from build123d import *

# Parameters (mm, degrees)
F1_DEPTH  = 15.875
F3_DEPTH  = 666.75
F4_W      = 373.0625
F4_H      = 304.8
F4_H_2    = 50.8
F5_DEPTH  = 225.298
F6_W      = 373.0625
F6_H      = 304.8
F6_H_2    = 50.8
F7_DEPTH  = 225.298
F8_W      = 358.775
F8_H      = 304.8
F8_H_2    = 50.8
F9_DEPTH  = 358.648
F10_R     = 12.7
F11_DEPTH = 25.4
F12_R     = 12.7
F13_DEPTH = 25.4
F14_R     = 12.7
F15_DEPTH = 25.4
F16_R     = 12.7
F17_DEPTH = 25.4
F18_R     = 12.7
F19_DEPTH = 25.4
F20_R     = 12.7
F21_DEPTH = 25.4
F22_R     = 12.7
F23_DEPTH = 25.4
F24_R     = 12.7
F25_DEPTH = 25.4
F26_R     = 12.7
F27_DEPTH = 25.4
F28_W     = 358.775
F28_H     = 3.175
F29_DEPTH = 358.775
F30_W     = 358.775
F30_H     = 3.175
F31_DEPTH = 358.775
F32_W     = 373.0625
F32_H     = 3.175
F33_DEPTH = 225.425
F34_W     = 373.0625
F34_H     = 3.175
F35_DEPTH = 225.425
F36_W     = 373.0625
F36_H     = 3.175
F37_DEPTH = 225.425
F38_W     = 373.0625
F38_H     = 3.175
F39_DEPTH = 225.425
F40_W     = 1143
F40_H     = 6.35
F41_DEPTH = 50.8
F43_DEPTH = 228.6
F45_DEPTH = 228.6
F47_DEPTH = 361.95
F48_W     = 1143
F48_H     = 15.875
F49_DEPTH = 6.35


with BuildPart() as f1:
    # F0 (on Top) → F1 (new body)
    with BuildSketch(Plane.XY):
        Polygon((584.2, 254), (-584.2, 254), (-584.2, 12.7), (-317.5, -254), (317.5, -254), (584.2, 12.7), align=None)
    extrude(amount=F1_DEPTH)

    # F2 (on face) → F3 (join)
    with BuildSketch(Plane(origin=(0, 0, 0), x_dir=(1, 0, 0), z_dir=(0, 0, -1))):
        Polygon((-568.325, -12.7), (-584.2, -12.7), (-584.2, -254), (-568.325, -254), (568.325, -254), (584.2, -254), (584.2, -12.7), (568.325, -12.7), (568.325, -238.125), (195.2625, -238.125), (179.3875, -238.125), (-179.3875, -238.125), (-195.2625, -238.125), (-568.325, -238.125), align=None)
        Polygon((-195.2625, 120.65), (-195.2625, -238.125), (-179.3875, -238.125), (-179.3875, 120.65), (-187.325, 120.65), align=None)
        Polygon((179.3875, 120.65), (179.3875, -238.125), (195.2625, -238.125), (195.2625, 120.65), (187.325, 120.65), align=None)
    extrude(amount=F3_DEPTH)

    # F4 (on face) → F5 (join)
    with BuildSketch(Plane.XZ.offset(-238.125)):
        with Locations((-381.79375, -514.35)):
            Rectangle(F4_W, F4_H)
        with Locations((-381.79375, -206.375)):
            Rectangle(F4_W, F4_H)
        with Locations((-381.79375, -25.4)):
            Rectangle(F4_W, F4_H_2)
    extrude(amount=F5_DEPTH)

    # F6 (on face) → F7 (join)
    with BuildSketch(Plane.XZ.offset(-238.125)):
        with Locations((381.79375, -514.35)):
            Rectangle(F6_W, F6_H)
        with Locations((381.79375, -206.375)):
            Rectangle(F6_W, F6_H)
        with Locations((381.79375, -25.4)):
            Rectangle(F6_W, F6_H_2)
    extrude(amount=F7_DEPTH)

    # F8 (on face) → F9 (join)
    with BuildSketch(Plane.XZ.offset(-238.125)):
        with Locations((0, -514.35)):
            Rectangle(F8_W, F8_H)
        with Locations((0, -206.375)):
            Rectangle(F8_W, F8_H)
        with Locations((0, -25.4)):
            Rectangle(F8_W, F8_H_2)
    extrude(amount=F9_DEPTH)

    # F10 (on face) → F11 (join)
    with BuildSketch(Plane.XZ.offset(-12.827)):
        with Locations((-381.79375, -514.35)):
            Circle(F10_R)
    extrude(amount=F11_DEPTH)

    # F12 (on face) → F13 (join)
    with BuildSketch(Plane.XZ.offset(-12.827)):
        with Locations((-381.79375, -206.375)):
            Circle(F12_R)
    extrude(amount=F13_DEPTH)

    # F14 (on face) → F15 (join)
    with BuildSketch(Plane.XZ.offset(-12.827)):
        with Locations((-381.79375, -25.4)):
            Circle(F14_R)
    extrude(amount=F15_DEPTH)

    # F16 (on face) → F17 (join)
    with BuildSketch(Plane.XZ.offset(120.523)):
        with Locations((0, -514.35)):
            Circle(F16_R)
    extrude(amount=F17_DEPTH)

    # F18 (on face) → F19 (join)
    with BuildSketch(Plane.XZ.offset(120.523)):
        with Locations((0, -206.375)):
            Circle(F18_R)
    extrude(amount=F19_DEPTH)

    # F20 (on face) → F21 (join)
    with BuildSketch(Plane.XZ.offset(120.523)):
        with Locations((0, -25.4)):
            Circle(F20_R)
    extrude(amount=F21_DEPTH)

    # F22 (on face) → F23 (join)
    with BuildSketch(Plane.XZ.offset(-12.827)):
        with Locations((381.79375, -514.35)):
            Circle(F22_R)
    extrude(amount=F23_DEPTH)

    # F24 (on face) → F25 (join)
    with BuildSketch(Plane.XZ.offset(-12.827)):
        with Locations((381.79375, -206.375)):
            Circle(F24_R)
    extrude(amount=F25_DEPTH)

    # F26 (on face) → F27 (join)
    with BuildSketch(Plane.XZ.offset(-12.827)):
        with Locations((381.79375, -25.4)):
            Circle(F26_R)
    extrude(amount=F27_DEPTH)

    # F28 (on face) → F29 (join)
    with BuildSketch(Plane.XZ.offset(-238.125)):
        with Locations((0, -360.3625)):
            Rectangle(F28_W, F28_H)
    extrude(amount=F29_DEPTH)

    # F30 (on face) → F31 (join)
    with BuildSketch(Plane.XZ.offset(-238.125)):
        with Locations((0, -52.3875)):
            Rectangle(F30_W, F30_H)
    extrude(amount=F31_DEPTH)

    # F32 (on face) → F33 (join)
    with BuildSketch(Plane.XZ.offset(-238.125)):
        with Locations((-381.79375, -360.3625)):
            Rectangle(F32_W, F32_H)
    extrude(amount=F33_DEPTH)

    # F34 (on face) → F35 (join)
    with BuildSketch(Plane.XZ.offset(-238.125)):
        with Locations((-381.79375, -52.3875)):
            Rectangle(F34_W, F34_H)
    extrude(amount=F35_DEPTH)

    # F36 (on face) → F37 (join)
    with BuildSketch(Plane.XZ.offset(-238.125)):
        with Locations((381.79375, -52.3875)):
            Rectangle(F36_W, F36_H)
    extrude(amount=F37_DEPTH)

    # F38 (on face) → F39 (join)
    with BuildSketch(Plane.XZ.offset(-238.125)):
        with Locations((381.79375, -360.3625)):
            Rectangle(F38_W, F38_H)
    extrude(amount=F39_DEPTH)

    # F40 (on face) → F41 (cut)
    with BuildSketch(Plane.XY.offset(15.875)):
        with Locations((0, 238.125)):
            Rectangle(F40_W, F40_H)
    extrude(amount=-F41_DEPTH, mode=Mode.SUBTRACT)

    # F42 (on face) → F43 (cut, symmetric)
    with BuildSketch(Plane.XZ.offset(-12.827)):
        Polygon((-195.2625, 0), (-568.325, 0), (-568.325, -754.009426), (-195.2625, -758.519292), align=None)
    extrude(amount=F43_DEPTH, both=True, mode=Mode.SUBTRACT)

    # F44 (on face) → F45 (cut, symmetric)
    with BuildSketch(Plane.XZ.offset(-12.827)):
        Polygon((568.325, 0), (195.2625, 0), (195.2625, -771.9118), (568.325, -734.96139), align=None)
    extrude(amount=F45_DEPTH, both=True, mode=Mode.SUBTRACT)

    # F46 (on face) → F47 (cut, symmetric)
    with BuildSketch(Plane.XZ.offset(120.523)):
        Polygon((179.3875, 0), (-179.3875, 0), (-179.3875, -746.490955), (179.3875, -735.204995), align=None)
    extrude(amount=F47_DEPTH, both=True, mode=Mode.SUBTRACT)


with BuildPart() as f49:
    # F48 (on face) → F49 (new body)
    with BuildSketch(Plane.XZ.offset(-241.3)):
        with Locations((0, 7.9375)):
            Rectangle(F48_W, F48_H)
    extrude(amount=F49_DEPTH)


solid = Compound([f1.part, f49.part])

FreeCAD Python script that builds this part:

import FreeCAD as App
import Part
import Sketcher
Q = App.Units.Quantity


def add_polygon(sketch, points):
    """Adds a closed chain of lines whose ends are joined by coincident constraints."""
    first, n = sketch.GeometryCount, len(points)
    for a, b in zip(points, points[1:] + points[:1]):
        sketch.addGeometry(Part.LineSegment(App.Vector(*a, 0), App.Vector(*b, 0)), False)
    for i in range(n):
        sketch.addConstraint(Sketcher.Constraint("Coincident", first + i, 2, first + (i + 1) % n, 1))

doc = App.newDocument("Part")
body = doc.addObject("PartDesign::Body", "Body")

# Sketch on XY plane
sketch1 = body.newObject("Sketcher::SketchObject", "Sketch")
sketch1.AttachmentSupport = (doc.getObject("XY_Plane"), [""])
sketch1.MapMode = "FlatFace"
add_polygon(sketch1, [(584, 254), (-584, 254), (-584, 13), (-318, -254), (318, -254), (584, 13)])  # lines 0-5
sketch1.addConstraint([
    Sketcher.Constraint("Horizontal", 0),
    Sketcher.Constraint("Vertical", 1),
    Sketcher.Constraint("Horizontal", 3),
    Sketcher.Constraint("Vertical", 5),
    Sketcher.Constraint("Symmetric", 1, 2, 4, 2, -2),
    Sketcher.Constraint("Perpendicular", 2, 4),
    Sketcher.Constraint("Equal", 2, 4),
    Sketcher.Constraint("DistanceX", 0, 2, 0, 1, Q("46 in")),
    Sketcher.Constraint("DistanceX", 3, 1, 3, 2, Q("25 in")),
    Sketcher.Constraint("DistanceY", 1, 2, 1, 1, Q("9.5 in")),
    Sketcher.Constraint("DistanceY", -1, 1, 0, 2, Q("10 in")),
])
pad1 = body.newObject("PartDesign::Pad", "Pad")
pad1.Profile = sketch1
pad1.Length = Q("0.625 in")

# Sketch on XY plane
sketch2 = body.newObject("Sketcher::SketchObject", "Sketch001")
sketch2.AttachmentSupport = (doc.getObject("XY_Plane"), [""])
sketch2.MapMode = "FlatFace"
add_polygon(sketch2, [(-568, 13), (-584, 13), (-584, 254), (584, 254), (584, 13), (568, 13), (568, 238), (195, 238), (195, -121), (179, -121), (179, 238), (-179, 238), (-179, -121), (-195, -121), (-195, 238), (-568, 238)])  # lines 0-15
sketch2.addConstraint([
    Sketcher.Constraint("Horizontal", 0),
    Sketcher.Constraint("Vertical", 1),
    Sketcher.Constraint("Horizontal", 2),
    Sketcher.Constraint("Vertical", 3),
    Sketcher.Constraint("Horizontal", 4),
    Sketcher.Constraint("Vertical", 5),
    Sketcher.Constraint("Horizontal", 6),
    Sketcher.Constraint("Vertical", 7),
    Sketcher.Constraint("Horizontal", 8),
    Sketcher.Constraint("Vertical", 9),
    Sketcher.Constraint("Horizontal", 10),
    Sketcher.Constraint("Vertical", 11),
    Sketcher.Constraint("Horizontal", 12),
    Sketcher.Constraint("Vertical", 13),
    Sketcher.Constraint("Horizontal", 14),
    Sketcher.Constraint("Vertical", 15),
    Sketcher.Constraint("Symmetric", 0, 2, 3, 2, -2),
    Sketcher.Constraint("Symmetric", 8, 2, 11, 2, -2),
    Sketcher.Constraint("Symmetric", 6, 2, 13, 2, -2),
    Sketcher.Constraint("Horizontal", 6, 2, 9, 2),
    Sketcher.Constraint("Equal", 0, 4),
    Sketcher.Constraint("Equal", 4, 8),
    Sketcher.Constraint("Equal", 10, 7),
    Sketcher.Constraint("DistanceX", 2, 1, 2, 2, Q("46 in")),
    Sketcher.Constraint("DistanceY", 1, 1, 1, 2, Q("9.5 in")),
    Sketcher.Constraint("DistanceY", -1, 1, 1, 2, Q("10 in")),
    Sketcher.Constraint("DistanceX", 0, 2, 0, 1, Q("0.625 in")),
    Sketcher.Constraint("DistanceX", 6, 2, 6, 1, Q("14.6875 in")),
    Sketcher.Constraint("DistanceY", 5, 1, 5, 2, Q("8.875 in")),
])
pad2 = body.newObject("PartDesign::Pad", "Pad001")
pad2.Profile = sketch2
pad2.Length = Q("26.25 in")
pad2.Reversed = True

# Sketch on XZ plane
sketch3 = body.newObject("Sketcher::SketchObject", "Sketch002")
sketch3.AttachmentSupport = (doc.getObject("XZ_Plane"), [""])
sketch3.MapMode = "FlatFace"
sketch3.AttachmentOffset = App.Placement(App.Vector(0, 0, -9.375 * 25.4), App.Rotation())
add_polygon(sketch3, [(-568, -362), (-568, -667), (-195, -667), (-195, -362)])  # lines 0-3
add_polygon(sketch3, [(-568, -54), (-568, -359), (-195, -359), (-195, -54)])  # lines 4-7
add_polygon(sketch3, [(-568, 0), (-568, -51), (-195, -51), (-195, 0)])  # lines 8-11
sketch3.addConstraint([
    Sketcher.Constraint("Vertical", 0),
    Sketcher.Constraint("Horizontal", 1),
    Sketcher.Constraint("Vertical", 2),
    Sketcher.Constraint("Horizontal", 3),
    Sketcher.Constraint("Vertical", 4),
    Sketcher.Constraint("Horizontal", 5),
    Sketcher.Constraint("Vertical", 6),
    Sketcher.Constraint("Horizontal", 7),
    Sketcher.Constraint("Vertical", 8),
    Sketcher.Constraint("Horizontal", 9),
    Sketcher.Constraint("Vertical", 10),
    Sketcher.Constraint("Horizontal", 11),
    Sketcher.Constraint("PointOnObject", 10, 2, -1),
    Sketcher.Constraint("Vertical", 3, 2, 4, 2),
    Sketcher.Constraint("Vertical", 2, 2, 5, 2),
    Sketcher.Constraint("Vertical", 7, 2, 8, 2),
    Sketcher.Constraint("Vertical", 6, 2, 9, 2),
    Sketcher.Constraint("Equal", 2, 4),
    Sketcher.Constraint("DistanceY", 0, 2, 0, 1, Q("12 in")),
    Sketcher.Constraint("DistanceY", 8, 2, 8, 1, Q("2 in")),
    Sketcher.Constraint("DistanceX", 1, 1, 1, 2, Q("14.6875 in")),
    Sketcher.Constraint("DistanceY", 0, 2, -1, 1, Q("26.25 in")),
    Sketcher.Constraint("DistanceX", 0, 2, -1, 1, Q("22.375 in")),
    Sketcher.Constraint("DistanceY", 4, 2, -1, 1, Q("14.125 in")),
])
pad3 = body.newObject("PartDesign::Pad", "Pad002")
pad3.Profile = sketch3
pad3.Length = Q("8.87 in")

# Sketch on XZ plane
sketch4 = body.newObject("Sketcher::SketchObject", "Sketch003")
sketch4.AttachmentSupport = (doc.getObject("XZ_Plane"), [""])
sketch4.MapMode = "FlatFace"
sketch4.AttachmentOffset = App.Placement(App.Vector(0, 0, -9.375 * 25.4), App.Rotation())
add_polygon(sketch4, [(195, -362), (195, -667), (568, -667), (568, -362)])  # lines 0-3
add_polygon(sketch4, [(195, -54), (195, -359), (568, -359), (568, -54)])  # lines 4-7
add_polygon(sketch4, [(195, 0), (195, -51), (568, -51), (568, 0)])  # lines 8-11
sketch4.addConstraint([
    Sketcher.Constraint("Vertical", 0),
    Sketcher.Constraint("Horizontal", 1),
    Sketcher.Constraint("Vertical", 2),
    Sketcher.Constraint("Horizontal", 3),
    Sketcher.Constraint("Vertical", 4),
    Sketcher.Constraint("Horizontal", 5),
    Sketcher.Constraint("Vertical", 6),
    Sketcher.Constraint("Horizontal", 7),
    Sketcher.Constraint("Vertical", 8),
    Sketcher.Constraint("Horizontal", 9),
    Sketcher.Constraint("Vertical", 10),
    Sketcher.Constraint("Horizontal", 11),
    Sketcher.Constraint("PointOnObject", 10, 2, -1),
    Sketcher.Constraint("Vertical", 3, 2, 4, 2),
    Sketcher.Constraint("Vertical", 2, 2, 5, 2),
    Sketcher.Constraint("Vertical", 7, 2, 8, 2),
    Sketcher.Constraint("Vertical", 6, 2, 9, 2),
    Sketcher.Constraint("Equal", 2, 4),
    Sketcher.Constraint("DistanceY", 0, 2, 0, 1, Q("12 in")),
    Sketcher.Constraint("DistanceY", 8, 2, 8, 1, Q("2 in")),
    Sketcher.Constraint("DistanceX", 1, 1, 1, 2, Q("14.6875 in")),
    Sketcher.Constraint("DistanceY", 0, 2, -1, 1, Q("26.25 in")),
    Sketcher.Constraint("DistanceX", -1, 1, 0, 2, Q("7.6875 in")),
    Sketcher.Constraint("DistanceY", 4, 2, -1, 1, Q("14.125 in")),
])
pad4 = body.newObject("PartDesign::Pad", "Pad003")
pad4.Profile = sketch4
pad4.Length = Q("8.87 in")

# Sketch on XZ plane
sketch5 = body.newObject("Sketcher::SketchObject", "Sketch004")
sketch5.AttachmentSupport = (doc.getObject("XZ_Plane"), [""])
sketch5.MapMode = "FlatFace"
sketch5.AttachmentOffset = App.Placement(App.Vector(0, 0, -9.375 * 25.4), App.Rotation())
add_polygon(sketch5, [(-179, -362), (-179, -667), (179, -667), (179, -362)])  # lines 0-3
add_polygon(sketch5, [(-179, -54), (-179, -359), (179, -359), (179, -54)])  # lines 4-7
add_polygon(sketch5, [(-179, 0), (-179, -51), (179, -51), (179, 0)])  # lines 8-11
sketch5.addConstraint([
    Sketcher.Constraint("Vertical", 0),
    Sketcher.Constraint("Horizontal", 1),
    Sketcher.Constraint("Vertical", 2),
    Sketcher.Constraint("Horizontal", 3),
    Sketcher.Constraint("Vertical", 4),
    Sketcher.Constraint("Horizontal", 5),
    Sketcher.Constraint("Vertical", 6),
    Sketcher.Constraint("Horizontal", 7),
    Sketcher.Constraint("Vertical", 8),
    Sketcher.Constraint("Horizontal", 9),
    Sketcher.Constraint("Vertical", 10),
    Sketcher.Constraint("Horizontal", 11),
    Sketcher.Constraint("Symmetric", 10, 2, 11, 2, -1, 1),
    Sketcher.Constraint("Vertical", 3, 2, 4, 2),
    Sketcher.Constraint("Vertical", 2, 2, 5, 2),
    Sketcher.Constraint("Vertical", 7, 2, 8, 2),
    Sketcher.Constraint("Vertical", 6, 2, 9, 2),
    Sketcher.Constraint("Equal", 2, 4),
    Sketcher.Constraint("DistanceY", 0, 2, 0, 1, Q("12 in")),
    Sketcher.Constraint("DistanceY", 8, 2, 8, 1, Q("2 in")),
    Sketcher.Constraint("DistanceX", 1, 1, 1, 2, Q("14.125 in")),
    Sketcher.Constraint("DistanceY", 0, 2, -1, 1, Q("26.25 in")),
    Sketcher.Constraint("DistanceY", 4, 2, -1, 1, Q("14.125 in")),
])
pad5 = body.newObject("PartDesign::Pad", "Pad004")
pad5.Profile = sketch5
pad5.Length = Q("14.12 in")

# Sketch on XZ plane
sketch6 = body.newObject("Sketcher::SketchObject", "Sketch005")
sketch6.AttachmentSupport = (doc.getObject("XZ_Plane"), [""])
sketch6.MapMode = "FlatFace"
sketch6.AttachmentOffset = App.Placement(App.Vector(0, 0, -0.505 * 25.4), App.Rotation())
sketch6.addGeometry(Part.Circle(App.Vector(-382, -514, 0), App.Vector(0, 0, 1), 13), False)
sketch6.addConstraint([
    Sketcher.Constraint("Diameter", 0, Q("1 in")),
    Sketcher.Constraint("DistanceY", 0, 3, -1, 1, Q("20.25 in")),
    Sketcher.Constraint("DistanceX", 0, 3, -1, 1, Q("15.03125 in")),
])
pad6 = body.newObject("PartDesign::Pad", "Pad005")
pad6.Profile = sketch6
pad6.Length = Q("1 in")

# Sketch on XZ plane
sketch7 = body.newObject("Sketcher::SketchObject", "Sketch006")
sketch7.AttachmentSupport = (doc.getObject("XZ_Plane"), [""])
sketch7.MapMode = "FlatFace"
sketch7.AttachmentOffset = App.Placement(App.Vector(0, 0, -0.505 * 25.4), App.Rotation())
sketch7.addGeometry(Part.Circle(App.Vector(-382, -206, 0), App.Vector(0, 0, 1), 13), False)
sketch7.addConstraint([
    Sketcher.Constraint("Diameter", 0, Q("1 in")),
    Sketcher.Constraint("DistanceX", 0, 3, -1, 1, Q("15.03125 in")),
    Sketcher.Constraint("DistanceY", 0, 3, -1, 1, Q("8.125 in")),
])
pad7 = body.newObject("PartDesign::Pad", "Pad006")
pad7.Profile = sketch7
pad7.Length = Q("1 in")

# Sketch on XZ plane
sketch8 = body.newObject("Sketcher::SketchObject", "Sketch007")
sketch8.AttachmentSupport = (doc.getObject("XZ_Plane"), [""])
sketch8.MapMode = "FlatFace"
sketch8.AttachmentOffset = App.Placement(App.Vector(0, 0, -0.505 * 25.4), App.Rotation())
sketch8.addGeometry(Part.Circle(App.Vector(-382, -25, 0), App.Vector(0, 0, 1), 13), False)
sketch8.addConstraint([
    Sketcher.Constraint("Diameter", 0, Q("1 in")),
    Sketcher.Constraint("DistanceY", 0, 3, -1, 1, Q("1 in")),
    Sketcher.Constraint("DistanceX", 0, 3, -1, 1, Q("15.03125 in")),
])
pad8 = body.newObject("PartDesign::Pad", "Pad007")
pad8.Profile = sketch8
pad8.Length = Q("1 in")

# Sketch on XZ plane
sketch9 = body.newObject("Sketcher::SketchObject", "Sketch008")
sketch9.AttachmentSupport = (doc.getObject("XZ_Plane"), [""])
sketch9.MapMode = "FlatFace"
sketch9.AttachmentOffset = App.Placement(App.Vector(0, 0, 4.745 * 25.4), App.Rotation())
sketch9.addGeometry(Part.Circle(App.Vector(0, -514, 0), App.Vector(0, 0, 1), 13), False)
sketch9.addConstraint([
    Sketcher.Constraint("PointOnObject", 0, 3, -2),
    Sketcher.Constraint("Diameter", 0, Q("1 in")),
    Sketcher.Constraint("DistanceY", 0, 3, -1, 1, Q("20.25 in")),
])
pad9 = body.newObject("PartDesign::Pad", "Pad008")
pad9.Profile = sketch9
pad9.Length = Q("1 in")

# Sketch on XZ plane
sketch10 = body.newObject("Sketcher::SketchObject", "Sketch009")
sketch10.AttachmentSupport = (doc.getObject("XZ_Plane"), [""])
sketch10.MapMode = "FlatFace"
sketch10.AttachmentOffset = App.Placement(App.Vector(0, 0, 4.745 * 25.4), App.Rotation())
sketch10.addGeometry(Part.Circle(App.Vector(0, -206, 0), App.Vector(0, 0, 1), 13), False)
sketch10.addConstraint([
    Sketcher.Constraint("PointOnObject", 0, 3, -2),
    Sketcher.Constraint("Diameter", 0, Q("1 in")),
    Sketcher.Constraint("DistanceY", 0, 3, -1, 1, Q("8.125 in")),
])
pad10 = body.newObject("PartDesign::Pad", "Pad009")
pad10.Profile = sketch10
pad10.Length = Q("1 in")

# Sketch on XZ plane
sketch11 = body.newObject("Sketcher::SketchObject", "Sketch010")
sketch11.AttachmentSupport = (doc.getObject("XZ_Plane"), [""])
sketch11.MapMode = "FlatFace"
sketch11.AttachmentOffset = App.Placement(App.Vector(0, 0, 4.745 * 25.4), App.Rotation())
sketch11.addGeometry(Part.Circle(App.Vector(0, -25, 0), App.Vector(0, 0, 1), 13), False)
sketch11.addConstraint([
    Sketcher.Constraint("PointOnObject", 0, 3, -2),
    Sketcher.Constraint("Diameter", 0, Q("1 in")),
    Sketcher.Constraint("DistanceY", 0, 3, -1, 1, Q("1 in")),
])
pad11 = body.newObject("PartDesign::Pad", "Pad010")
pad11.Profile = sketch11
pad11.Length = Q("1 in")

# Sketch on XZ plane
sketch12 = body.newObject("Sketcher::SketchObject", "Sketch011")
sketch12.AttachmentSupport = (doc.getObject("XZ_Plane"), [""])
sketch12.MapMode = "FlatFace"
sketch12.AttachmentOffset = App.Placement(App.Vector(0, 0, -0.505 * 25.4), App.Rotation())
sketch12.addGeometry(Part.Circle(App.Vector(382, -514, 0), App.Vector(0, 0, 1), 13), False)
sketch12.addConstraint([
    Sketcher.Constraint("Diameter", 0, Q("1 in")),
    Sketcher.Constraint("DistanceY", 0, 3, -1, 1, Q("20.25 in")),
    Sketcher.Constraint("DistanceX", -1, 1, 0, 3, Q("15.03125 in")),
])
pad12 = body.newObject("PartDesign::Pad", "Pad011")
pad12.Profile = sketch12
pad12.Length = Q("1 in")

# Sketch on XZ plane
sketch13 = body.newObject("Sketcher::SketchObject", "Sketch012")
sketch13.AttachmentSupport = (doc.getObject("XZ_Plane"), [""])
sketch13.MapMode = "FlatFace"
sketch13.AttachmentOffset = App.Placement(App.Vector(0, 0, -0.505 * 25.4), App.Rotation())
sketch13.addGeometry(Part.Circle(App.Vector(382, -206, 0), App.Vector(0, 0, 1), 13), False)
sketch13.addConstraint([
    Sketcher.Constraint("Diameter", 0, Q("1 in")),
    Sketcher.Constraint("DistanceX", -1, 1, 0, 3, Q("15.03125 in")),
    Sketcher.Constraint("DistanceY", 0, 3, -1, 1, Q("8.125 in")),
])
pad13 = body.newObject("PartDesign::Pad", "Pad012")
pad13.Profile = sketch13
pad13.Length = Q("1 in")

# Sketch on XZ plane
sketch14 = body.newObject("Sketcher::SketchObject", "Sketch013")
sketch14.AttachmentSupport = (doc.getObject("XZ_Plane"), [""])
sketch14.MapMode = "FlatFace"
sketch14.AttachmentOffset = App.Placement(App.Vector(0, 0, -0.505 * 25.4), App.Rotation())
sketch14.addGeometry(Part.Circle(App.Vector(382, -25, 0), App.Vector(0, 0, 1), 13), False)
sketch14.addConstraint([
    Sketcher.Constraint("Diameter", 0, Q("1 in")),
    Sketcher.Constraint("DistanceY", 0, 3, -1, 1, Q("1 in")),
    Sketcher.Constraint("DistanceX", -1, 1, 0, 3, Q("15.03125 in")),
])
pad14 = body.newObject("PartDesign::Pad", "Pad013")
pad14.Profile = sketch14
pad14.Length = Q("1 in")

# Sketch on XZ plane
sketch15 = body.newObject("Sketcher::SketchObject", "Sketch014")
sketch15.AttachmentSupport = (doc.getObject("XZ_Plane"), [""])
sketch15.MapMode = "FlatFace"
sketch15.AttachmentOffset = App.Placement(App.Vector(0, 0, -9.375 * 25.4), App.Rotation())
add_polygon(sketch15, [(-179.4, -358.8), (-179.4, -361.9), (179.4, -361.9), (179.4, -358.8)])  # lines 0-3
sketch15.addConstraint([
    Sketcher.Constraint("Vertical", 0),
    Sketcher.Constraint("Horizontal", 1),
    Sketcher.Constraint("Vertical", 2),
    Sketcher.Constraint("Horizontal", 3),
    Sketcher.Constraint("DistanceX", 1, 1, 1, 2, Q("14.125 in")),
    Sketcher.Constraint("DistanceY", 0, 2, 0, 1, Q("0.125 in")),
    Sketcher.Constraint("DistanceY", 0, 2, -1, 1, Q("14.25 in")),
    Sketcher.Constraint("DistanceX", 0, 2, -1, 1, Q("7.0625 in")),
])
pad15 = body.newObject("PartDesign::Pad", "Pad014")
pad15.Profile = sketch15
pad15.Length = Q("14.125 in")

# Sketch on XZ plane
sketch16 = body.newObject("Sketcher::SketchObject", "Sketch015")
sketch16.AttachmentSupport = (doc.getObject("XZ_Plane"), [""])
sketch16.MapMode = "FlatFace"
sketch16.AttachmentOffset = App.Placement(App.Vector(0, 0, -9.375 * 25.4), App.Rotation())
add_polygon(sketch16, [(-179.4, -50.8), (-179.4, -54), (179.4, -54), (179.4, -50.8)])  # lines 0-3
sketch16.addConstraint([
    Sketcher.Constraint("Vertical", 0),
    Sketcher.Constraint("Horizontal", 1),
    Sketcher.Constraint("Vertical", 2),
    Sketcher.Constraint("Horizontal", 3),
    Sketcher.Constraint("DistanceY", 2, 2, -1, 1, Q("2 in")),
    Sketcher.Constraint("DistanceX", 1, 1, 1, 2, Q("14.125 in")),
    Sketcher.Constraint("DistanceY", 0, 2, 0, 1, Q("0.125 in")),
    Sketcher.Constraint("DistanceX", 0, 2, -1, 1, Q("7.0625 in")),
])
pad16 = body.newObject("PartDesign::Pad", "Pad015")
pad16.Profile = sketch16
pad16.Length = Q("14.125 in")

# Sketch on XZ plane
sketch17 = body.newObject("Sketcher::SketchObject", "Sketch016")
sketch17.AttachmentSupport = (doc.getObject("XZ_Plane"), [""])
sketch17.MapMode = "FlatFace"
sketch17.AttachmentOffset = App.Placement(App.Vector(0, 0, -9.375 * 25.4), App.Rotation())
add_polygon(sketch17, [(-568.3, -358.8), (-568.3, -361.9), (-195.3, -361.9), (-195.3, -358.8)])  # lines 0-3
sketch17.addConstraint([
    Sketcher.Constraint("Vertical", 0),
    Sketcher.Constraint("Horizontal", 1),
    Sketcher.Constraint("Vertical", 2),
    Sketcher.Constraint("Horizontal", 3),
    Sketcher.Constraint("DistanceX", 1, 1, 1, 2, Q("14.6875 in")),
    Sketcher.Constraint("DistanceY", 0, 2, 0, 1, Q("0.125 in")),
    Sketcher.Constraint("DistanceY", 0, 2, -1, 1, Q("14.25 in")),
    Sketcher.Constraint("DistanceX", 0, 2, -1, 1, Q("22.375 in")),
])
pad17 = body.newObject("PartDesign::Pad", "Pad016")
pad17.Profile = sketch17
pad17.Length = Q("8.875 in")

# Sketch on XZ plane
sketch18 = body.newObject("Sketcher::SketchObject", "Sketch017")
sketch18.AttachmentSupport = (doc.getObject("XZ_Plane"), [""])
sketch18.MapMode = "FlatFace"
sketch18.AttachmentOffset = App.Placement(App.Vector(0, 0, -9.375 * 25.4), App.Rotation())
add_polygon(sketch18, [(-568.3, -50.8), (-568.3, -54), (-195.3, -54), (-195.3, -50.8)])  # lines 0-3
sketch18.addConstraint([
    Sketcher.Constraint("Vertical", 0),
    Sketcher.Constraint("Horizontal", 1),
    Sketcher.Constraint("Vertical", 2),
    Sketcher.Constraint("Horizontal", 3),
    Sketcher.Constraint("DistanceY", 2, 2, -1, 1, Q("2 in")),
    Sketcher.Constraint("DistanceX", 1, 1, 1, 2, Q("14.6875 in")),
    Sketcher.Constraint("DistanceY", 0, 2, 0, 1, Q("0.125 in")),
    Sketcher.Constraint("DistanceX", 0, 2, -1, 1, Q("22.375 in")),
])
pad18 = body.newObject("PartDesign::Pad", "Pad017")
pad18.Profile = sketch18
pad18.Length = Q("8.875 in")

# Sketch on XZ plane
sketch19 = body.newObject("Sketcher::SketchObject", "Sketch018")
sketch19.AttachmentSupport = (doc.getObject("XZ_Plane"), [""])
sketch19.MapMode = "FlatFace"
sketch19.AttachmentOffset = App.Placement(App.Vector(0, 0, -9.375 * 25.4), App.Rotation())
add_polygon(sketch19, [(195.3, -50.8), (195.3, -54), (568.3, -54), (568.3, -50.8)])  # lines 0-3
sketch19.addConstraint([
    Sketcher.Constraint("Vertical", 0),
    Sketcher.Constraint("Horizontal", 1),
    Sketcher.Constraint("Vertical", 2),
    Sketcher.Constraint("Horizontal", 3),
    Sketcher.Constraint("DistanceY", 2, 2, -1, 1, Q("2 in")),
    Sketcher.Constraint("DistanceX", 1, 1, 1, 2, Q("14.6875 in")),
    Sketcher.Constraint("DistanceY", 0, 2, 0, 1, Q("0.125 in")),
    Sketcher.Constraint("DistanceX", -1, 1, 0, 2, Q("7.6875 in")),
])
pad19 = body.newObject("PartDesign::Pad", "Pad018")
pad19.Profile = sketch19
pad19.Length = Q("8.875 in")

# Sketch on XZ plane
sketch20 = body.newObject("Sketcher::SketchObject", "Sketch019")
sketch20.AttachmentSupport = (doc.getObject("XZ_Plane"), [""])
sketch20.MapMode = "FlatFace"
sketch20.AttachmentOffset = App.Placement(App.Vector(0, 0, -9.375 * 25.4), App.Rotation())
add_polygon(sketch20, [(195.3, -358.8), (195.3, -361.9), (568.3, -361.9), (568.3, -358.8)])  # lines 0-3
sketch20.addConstraint([
    Sketcher.Constraint("Vertical", 0),
    Sketcher.Constraint("Horizontal", 1),
    Sketcher.Constraint("Vertical", 2),
    Sketcher.Constraint("Horizontal", 3),
    Sketcher.Constraint("DistanceX", 1, 1, 1, 2, Q("14.6875 in")),
    Sketcher.Constraint("DistanceY", 0, 2, 0, 1, Q("0.125 in")),
    Sketcher.Constraint("DistanceY", 0, 2, -1, 1, Q("14.25 in")),
    Sketcher.Constraint("DistanceX", -1, 1, 0, 2, Q("7.6875 in")),
])
pad20 = body.newObject("PartDesign::Pad", "Pad019")
pad20.Profile = sketch20
pad20.Length = Q("8.875 in")

# Sketch on XY plane
sketch21 = body.newObject("Sketcher::SketchObject", "Sketch020")
sketch21.AttachmentSupport = (doc.getObject("XY_Plane"), [""])
sketch21.MapMode = "FlatFace"
sketch21.AttachmentOffset = App.Placement(App.Vector(0, 0, 0.625 * 25.4), App.Rotation())
add_polygon(sketch21, [(-572, 241), (-572, 235), (572, 235), (572, 241)])  # lines 0-3
sketch21.addConstraint([
    Sketcher.Constraint("Vertical", 0),
    Sketcher.Constraint("Horizontal", 1),
    Sketcher.Constraint("Vertical", 2),
    Sketcher.Constraint("Horizontal", 3),
    Sketcher.Constraint("DistanceX", 1, 1, 1, 2, Q("45 in")),
    Sketcher.Constraint("DistanceY", 0, 2, 0, 1, Q("0.25 in")),
    Sketcher.Constraint("DistanceX", 0, 2, -1, 1, Q("22.5 in")),
    Sketcher.Constraint("DistanceY", -1, 1, 2, 2, Q("9.5 in")),
])
pocket1 = body.newObject("PartDesign::Pocket", "Pocket")
pocket1.Profile = sketch21
pocket1.Length = Q("2 in")

# Sketch on XZ plane
sketch22 = body.newObject("Sketcher::SketchObject", "Sketch021")
sketch22.AttachmentSupport = (doc.getObject("XZ_Plane"), [""])
sketch22.MapMode = "FlatFace"
sketch22.AttachmentOffset = App.Placement(App.Vector(0, 0, -0.505 * 25.4), App.Rotation())
add_polygon(sketch22, [(-195.2625, 0), (-568.325, 0), (-568.325, -754.009426), (-195.2625, -758.519292)])  # lines 0-3
sketch22.addConstraint([
    Sketcher.Constraint("Horizontal", 0),
    Sketcher.Constraint("Vertical", 1),
    Sketcher.Constraint("Vertical", 3),
    Sketcher.Constraint("PointOnObject", 0, 2, -1),
    Sketcher.Constraint("DistanceX", 0, 2, 0, 1, Q("14.6875 in")),
    Sketcher.Constraint("DistanceX", 0, 2, -1, 1, Q("22.375 in")),
    Sketcher.Constraint("DistanceY", 3, 1, 3, 2, Q("758.519292 mm")),
    Sketcher.Constraint("Distance", 2, Q("373.089758 mm")),
])
pocket2 = body.newObject("PartDesign::Pocket", "Pocket001")
pocket2.Profile = sketch22
pocket2.Length = Q("18 in")
pocket2.Midplane = True

# Sketch on XZ plane
sketch23 = body.newObject("Sketcher::SketchObject", "Sketch022")
sketch23.AttachmentSupport = (doc.getObject("XZ_Plane"), [""])
sketch23.MapMode = "FlatFace"
sketch23.AttachmentOffset = App.Placement(App.Vector(0, 0, -0.505 * 25.4), App.Rotation())
add_polygon(sketch23, [(568, 0), (195, 0), (195, -772), (568, -735)])  # lines 0-3
sketch23.addConstraint([
    Sketcher.Constraint("Horizontal", 0),
    Sketcher.Constraint("Vertical", 1),
    Sketcher.Constraint("Vertical", 3),
    Sketcher.Constraint("PointOnObject", 0, 2, -1),
    Sketcher.Constraint("DistanceX", 0, 2, 0, 1, Q("14.6875 in")),
    Sketcher.Constraint("DistanceX", -1, 1, 0, 2, Q("7.6875 in")),
    Sketcher.Constraint("DistanceY", 1, 2, 1, 1, Q("771.9118 mm")),
    Sketcher.Constraint("DistanceY", 3, 1, 3, 2, Q("734.96139 mm")),
])
pocket3 = body.newObject("PartDesign::Pocket", "Pocket002")
pocket3.Profile = sketch23
pocket3.Length = Q("18 in")
pocket3.Midplane = True

# Sketch on XZ plane
sketch24 = body.newObject("Sketcher::SketchObject", "Sketch023")
sketch24.AttachmentSupport = (doc.getObject("XZ_Plane"), [""])
sketch24.MapMode = "FlatFace"
sketch24.AttachmentOffset = App.Placement(App.Vector(0, 0, 4.745 * 25.4), App.Rotation())
add_polygon(sketch24, [(179, 0), (-179, 0), (-179, -746), (179, -735)])  # lines 0-3
sketch24.addConstraint([
    Sketcher.Constraint("Horizontal", 0),
    Sketcher.Constraint("Vertical", 1),
    Sketcher.Constraint("Vertical", 3),
    Sketcher.Constraint("Symmetric", 0, 2, 3, 2, -1, 1),
    Sketcher.Constraint("DistanceX", 0, 2, 0, 1, Q("14.125 in")),
    Sketcher.Constraint("DistanceY", 1, 2, 1, 1, Q("746.490955 mm")),
    Sketcher.Constraint("DistanceY", 3, 1, 3, 2, Q("735.204995 mm")),
])
pocket4 = body.newObject("PartDesign::Pocket", "Pocket003")
pocket4.Profile = sketch24
pocket4.Length = Q("28.5 in")
pocket4.Midplane = True
body2 = doc.addObject("PartDesign::Body", "Body001")

# Sketch on XZ plane
sketch25 = body2.newObject("Sketcher::SketchObject", "Sketch024")
sketch25.AttachmentSupport = (doc.getObject("XZ_Plane001"), [""])
sketch25.MapMode = "FlatFace"
sketch25.AttachmentOffset = App.Placement(App.Vector(0, 0, -9.5 * 25.4), App.Rotation())
add_polygon(sketch25, [(-572, 16), (-572, 0), (572, 0), (572, 16)])  # lines 0-3
sketch25.addConstraint([
    Sketcher.Constraint("Vertical", 0),
    Sketcher.Constraint("Horizontal", 1),
    Sketcher.Constraint("Vertical", 2),
    Sketcher.Constraint("Horizontal", 3),
    Sketcher.Constraint("Symmetric", 0, 2, 1, 2, -1, 1),
    Sketcher.Constraint("DistanceX", 1, 1, 1, 2, Q("45 in")),
    Sketcher.Constraint("DistanceY", 0, 2, 0, 1, Q("0.625 in")),
])
pad21 = body2.newObject("PartDesign::Pad", "Pad020")
pad21.Profile = sketch25
pad21.Length = Q("0.25 in")

doc.recompute()
